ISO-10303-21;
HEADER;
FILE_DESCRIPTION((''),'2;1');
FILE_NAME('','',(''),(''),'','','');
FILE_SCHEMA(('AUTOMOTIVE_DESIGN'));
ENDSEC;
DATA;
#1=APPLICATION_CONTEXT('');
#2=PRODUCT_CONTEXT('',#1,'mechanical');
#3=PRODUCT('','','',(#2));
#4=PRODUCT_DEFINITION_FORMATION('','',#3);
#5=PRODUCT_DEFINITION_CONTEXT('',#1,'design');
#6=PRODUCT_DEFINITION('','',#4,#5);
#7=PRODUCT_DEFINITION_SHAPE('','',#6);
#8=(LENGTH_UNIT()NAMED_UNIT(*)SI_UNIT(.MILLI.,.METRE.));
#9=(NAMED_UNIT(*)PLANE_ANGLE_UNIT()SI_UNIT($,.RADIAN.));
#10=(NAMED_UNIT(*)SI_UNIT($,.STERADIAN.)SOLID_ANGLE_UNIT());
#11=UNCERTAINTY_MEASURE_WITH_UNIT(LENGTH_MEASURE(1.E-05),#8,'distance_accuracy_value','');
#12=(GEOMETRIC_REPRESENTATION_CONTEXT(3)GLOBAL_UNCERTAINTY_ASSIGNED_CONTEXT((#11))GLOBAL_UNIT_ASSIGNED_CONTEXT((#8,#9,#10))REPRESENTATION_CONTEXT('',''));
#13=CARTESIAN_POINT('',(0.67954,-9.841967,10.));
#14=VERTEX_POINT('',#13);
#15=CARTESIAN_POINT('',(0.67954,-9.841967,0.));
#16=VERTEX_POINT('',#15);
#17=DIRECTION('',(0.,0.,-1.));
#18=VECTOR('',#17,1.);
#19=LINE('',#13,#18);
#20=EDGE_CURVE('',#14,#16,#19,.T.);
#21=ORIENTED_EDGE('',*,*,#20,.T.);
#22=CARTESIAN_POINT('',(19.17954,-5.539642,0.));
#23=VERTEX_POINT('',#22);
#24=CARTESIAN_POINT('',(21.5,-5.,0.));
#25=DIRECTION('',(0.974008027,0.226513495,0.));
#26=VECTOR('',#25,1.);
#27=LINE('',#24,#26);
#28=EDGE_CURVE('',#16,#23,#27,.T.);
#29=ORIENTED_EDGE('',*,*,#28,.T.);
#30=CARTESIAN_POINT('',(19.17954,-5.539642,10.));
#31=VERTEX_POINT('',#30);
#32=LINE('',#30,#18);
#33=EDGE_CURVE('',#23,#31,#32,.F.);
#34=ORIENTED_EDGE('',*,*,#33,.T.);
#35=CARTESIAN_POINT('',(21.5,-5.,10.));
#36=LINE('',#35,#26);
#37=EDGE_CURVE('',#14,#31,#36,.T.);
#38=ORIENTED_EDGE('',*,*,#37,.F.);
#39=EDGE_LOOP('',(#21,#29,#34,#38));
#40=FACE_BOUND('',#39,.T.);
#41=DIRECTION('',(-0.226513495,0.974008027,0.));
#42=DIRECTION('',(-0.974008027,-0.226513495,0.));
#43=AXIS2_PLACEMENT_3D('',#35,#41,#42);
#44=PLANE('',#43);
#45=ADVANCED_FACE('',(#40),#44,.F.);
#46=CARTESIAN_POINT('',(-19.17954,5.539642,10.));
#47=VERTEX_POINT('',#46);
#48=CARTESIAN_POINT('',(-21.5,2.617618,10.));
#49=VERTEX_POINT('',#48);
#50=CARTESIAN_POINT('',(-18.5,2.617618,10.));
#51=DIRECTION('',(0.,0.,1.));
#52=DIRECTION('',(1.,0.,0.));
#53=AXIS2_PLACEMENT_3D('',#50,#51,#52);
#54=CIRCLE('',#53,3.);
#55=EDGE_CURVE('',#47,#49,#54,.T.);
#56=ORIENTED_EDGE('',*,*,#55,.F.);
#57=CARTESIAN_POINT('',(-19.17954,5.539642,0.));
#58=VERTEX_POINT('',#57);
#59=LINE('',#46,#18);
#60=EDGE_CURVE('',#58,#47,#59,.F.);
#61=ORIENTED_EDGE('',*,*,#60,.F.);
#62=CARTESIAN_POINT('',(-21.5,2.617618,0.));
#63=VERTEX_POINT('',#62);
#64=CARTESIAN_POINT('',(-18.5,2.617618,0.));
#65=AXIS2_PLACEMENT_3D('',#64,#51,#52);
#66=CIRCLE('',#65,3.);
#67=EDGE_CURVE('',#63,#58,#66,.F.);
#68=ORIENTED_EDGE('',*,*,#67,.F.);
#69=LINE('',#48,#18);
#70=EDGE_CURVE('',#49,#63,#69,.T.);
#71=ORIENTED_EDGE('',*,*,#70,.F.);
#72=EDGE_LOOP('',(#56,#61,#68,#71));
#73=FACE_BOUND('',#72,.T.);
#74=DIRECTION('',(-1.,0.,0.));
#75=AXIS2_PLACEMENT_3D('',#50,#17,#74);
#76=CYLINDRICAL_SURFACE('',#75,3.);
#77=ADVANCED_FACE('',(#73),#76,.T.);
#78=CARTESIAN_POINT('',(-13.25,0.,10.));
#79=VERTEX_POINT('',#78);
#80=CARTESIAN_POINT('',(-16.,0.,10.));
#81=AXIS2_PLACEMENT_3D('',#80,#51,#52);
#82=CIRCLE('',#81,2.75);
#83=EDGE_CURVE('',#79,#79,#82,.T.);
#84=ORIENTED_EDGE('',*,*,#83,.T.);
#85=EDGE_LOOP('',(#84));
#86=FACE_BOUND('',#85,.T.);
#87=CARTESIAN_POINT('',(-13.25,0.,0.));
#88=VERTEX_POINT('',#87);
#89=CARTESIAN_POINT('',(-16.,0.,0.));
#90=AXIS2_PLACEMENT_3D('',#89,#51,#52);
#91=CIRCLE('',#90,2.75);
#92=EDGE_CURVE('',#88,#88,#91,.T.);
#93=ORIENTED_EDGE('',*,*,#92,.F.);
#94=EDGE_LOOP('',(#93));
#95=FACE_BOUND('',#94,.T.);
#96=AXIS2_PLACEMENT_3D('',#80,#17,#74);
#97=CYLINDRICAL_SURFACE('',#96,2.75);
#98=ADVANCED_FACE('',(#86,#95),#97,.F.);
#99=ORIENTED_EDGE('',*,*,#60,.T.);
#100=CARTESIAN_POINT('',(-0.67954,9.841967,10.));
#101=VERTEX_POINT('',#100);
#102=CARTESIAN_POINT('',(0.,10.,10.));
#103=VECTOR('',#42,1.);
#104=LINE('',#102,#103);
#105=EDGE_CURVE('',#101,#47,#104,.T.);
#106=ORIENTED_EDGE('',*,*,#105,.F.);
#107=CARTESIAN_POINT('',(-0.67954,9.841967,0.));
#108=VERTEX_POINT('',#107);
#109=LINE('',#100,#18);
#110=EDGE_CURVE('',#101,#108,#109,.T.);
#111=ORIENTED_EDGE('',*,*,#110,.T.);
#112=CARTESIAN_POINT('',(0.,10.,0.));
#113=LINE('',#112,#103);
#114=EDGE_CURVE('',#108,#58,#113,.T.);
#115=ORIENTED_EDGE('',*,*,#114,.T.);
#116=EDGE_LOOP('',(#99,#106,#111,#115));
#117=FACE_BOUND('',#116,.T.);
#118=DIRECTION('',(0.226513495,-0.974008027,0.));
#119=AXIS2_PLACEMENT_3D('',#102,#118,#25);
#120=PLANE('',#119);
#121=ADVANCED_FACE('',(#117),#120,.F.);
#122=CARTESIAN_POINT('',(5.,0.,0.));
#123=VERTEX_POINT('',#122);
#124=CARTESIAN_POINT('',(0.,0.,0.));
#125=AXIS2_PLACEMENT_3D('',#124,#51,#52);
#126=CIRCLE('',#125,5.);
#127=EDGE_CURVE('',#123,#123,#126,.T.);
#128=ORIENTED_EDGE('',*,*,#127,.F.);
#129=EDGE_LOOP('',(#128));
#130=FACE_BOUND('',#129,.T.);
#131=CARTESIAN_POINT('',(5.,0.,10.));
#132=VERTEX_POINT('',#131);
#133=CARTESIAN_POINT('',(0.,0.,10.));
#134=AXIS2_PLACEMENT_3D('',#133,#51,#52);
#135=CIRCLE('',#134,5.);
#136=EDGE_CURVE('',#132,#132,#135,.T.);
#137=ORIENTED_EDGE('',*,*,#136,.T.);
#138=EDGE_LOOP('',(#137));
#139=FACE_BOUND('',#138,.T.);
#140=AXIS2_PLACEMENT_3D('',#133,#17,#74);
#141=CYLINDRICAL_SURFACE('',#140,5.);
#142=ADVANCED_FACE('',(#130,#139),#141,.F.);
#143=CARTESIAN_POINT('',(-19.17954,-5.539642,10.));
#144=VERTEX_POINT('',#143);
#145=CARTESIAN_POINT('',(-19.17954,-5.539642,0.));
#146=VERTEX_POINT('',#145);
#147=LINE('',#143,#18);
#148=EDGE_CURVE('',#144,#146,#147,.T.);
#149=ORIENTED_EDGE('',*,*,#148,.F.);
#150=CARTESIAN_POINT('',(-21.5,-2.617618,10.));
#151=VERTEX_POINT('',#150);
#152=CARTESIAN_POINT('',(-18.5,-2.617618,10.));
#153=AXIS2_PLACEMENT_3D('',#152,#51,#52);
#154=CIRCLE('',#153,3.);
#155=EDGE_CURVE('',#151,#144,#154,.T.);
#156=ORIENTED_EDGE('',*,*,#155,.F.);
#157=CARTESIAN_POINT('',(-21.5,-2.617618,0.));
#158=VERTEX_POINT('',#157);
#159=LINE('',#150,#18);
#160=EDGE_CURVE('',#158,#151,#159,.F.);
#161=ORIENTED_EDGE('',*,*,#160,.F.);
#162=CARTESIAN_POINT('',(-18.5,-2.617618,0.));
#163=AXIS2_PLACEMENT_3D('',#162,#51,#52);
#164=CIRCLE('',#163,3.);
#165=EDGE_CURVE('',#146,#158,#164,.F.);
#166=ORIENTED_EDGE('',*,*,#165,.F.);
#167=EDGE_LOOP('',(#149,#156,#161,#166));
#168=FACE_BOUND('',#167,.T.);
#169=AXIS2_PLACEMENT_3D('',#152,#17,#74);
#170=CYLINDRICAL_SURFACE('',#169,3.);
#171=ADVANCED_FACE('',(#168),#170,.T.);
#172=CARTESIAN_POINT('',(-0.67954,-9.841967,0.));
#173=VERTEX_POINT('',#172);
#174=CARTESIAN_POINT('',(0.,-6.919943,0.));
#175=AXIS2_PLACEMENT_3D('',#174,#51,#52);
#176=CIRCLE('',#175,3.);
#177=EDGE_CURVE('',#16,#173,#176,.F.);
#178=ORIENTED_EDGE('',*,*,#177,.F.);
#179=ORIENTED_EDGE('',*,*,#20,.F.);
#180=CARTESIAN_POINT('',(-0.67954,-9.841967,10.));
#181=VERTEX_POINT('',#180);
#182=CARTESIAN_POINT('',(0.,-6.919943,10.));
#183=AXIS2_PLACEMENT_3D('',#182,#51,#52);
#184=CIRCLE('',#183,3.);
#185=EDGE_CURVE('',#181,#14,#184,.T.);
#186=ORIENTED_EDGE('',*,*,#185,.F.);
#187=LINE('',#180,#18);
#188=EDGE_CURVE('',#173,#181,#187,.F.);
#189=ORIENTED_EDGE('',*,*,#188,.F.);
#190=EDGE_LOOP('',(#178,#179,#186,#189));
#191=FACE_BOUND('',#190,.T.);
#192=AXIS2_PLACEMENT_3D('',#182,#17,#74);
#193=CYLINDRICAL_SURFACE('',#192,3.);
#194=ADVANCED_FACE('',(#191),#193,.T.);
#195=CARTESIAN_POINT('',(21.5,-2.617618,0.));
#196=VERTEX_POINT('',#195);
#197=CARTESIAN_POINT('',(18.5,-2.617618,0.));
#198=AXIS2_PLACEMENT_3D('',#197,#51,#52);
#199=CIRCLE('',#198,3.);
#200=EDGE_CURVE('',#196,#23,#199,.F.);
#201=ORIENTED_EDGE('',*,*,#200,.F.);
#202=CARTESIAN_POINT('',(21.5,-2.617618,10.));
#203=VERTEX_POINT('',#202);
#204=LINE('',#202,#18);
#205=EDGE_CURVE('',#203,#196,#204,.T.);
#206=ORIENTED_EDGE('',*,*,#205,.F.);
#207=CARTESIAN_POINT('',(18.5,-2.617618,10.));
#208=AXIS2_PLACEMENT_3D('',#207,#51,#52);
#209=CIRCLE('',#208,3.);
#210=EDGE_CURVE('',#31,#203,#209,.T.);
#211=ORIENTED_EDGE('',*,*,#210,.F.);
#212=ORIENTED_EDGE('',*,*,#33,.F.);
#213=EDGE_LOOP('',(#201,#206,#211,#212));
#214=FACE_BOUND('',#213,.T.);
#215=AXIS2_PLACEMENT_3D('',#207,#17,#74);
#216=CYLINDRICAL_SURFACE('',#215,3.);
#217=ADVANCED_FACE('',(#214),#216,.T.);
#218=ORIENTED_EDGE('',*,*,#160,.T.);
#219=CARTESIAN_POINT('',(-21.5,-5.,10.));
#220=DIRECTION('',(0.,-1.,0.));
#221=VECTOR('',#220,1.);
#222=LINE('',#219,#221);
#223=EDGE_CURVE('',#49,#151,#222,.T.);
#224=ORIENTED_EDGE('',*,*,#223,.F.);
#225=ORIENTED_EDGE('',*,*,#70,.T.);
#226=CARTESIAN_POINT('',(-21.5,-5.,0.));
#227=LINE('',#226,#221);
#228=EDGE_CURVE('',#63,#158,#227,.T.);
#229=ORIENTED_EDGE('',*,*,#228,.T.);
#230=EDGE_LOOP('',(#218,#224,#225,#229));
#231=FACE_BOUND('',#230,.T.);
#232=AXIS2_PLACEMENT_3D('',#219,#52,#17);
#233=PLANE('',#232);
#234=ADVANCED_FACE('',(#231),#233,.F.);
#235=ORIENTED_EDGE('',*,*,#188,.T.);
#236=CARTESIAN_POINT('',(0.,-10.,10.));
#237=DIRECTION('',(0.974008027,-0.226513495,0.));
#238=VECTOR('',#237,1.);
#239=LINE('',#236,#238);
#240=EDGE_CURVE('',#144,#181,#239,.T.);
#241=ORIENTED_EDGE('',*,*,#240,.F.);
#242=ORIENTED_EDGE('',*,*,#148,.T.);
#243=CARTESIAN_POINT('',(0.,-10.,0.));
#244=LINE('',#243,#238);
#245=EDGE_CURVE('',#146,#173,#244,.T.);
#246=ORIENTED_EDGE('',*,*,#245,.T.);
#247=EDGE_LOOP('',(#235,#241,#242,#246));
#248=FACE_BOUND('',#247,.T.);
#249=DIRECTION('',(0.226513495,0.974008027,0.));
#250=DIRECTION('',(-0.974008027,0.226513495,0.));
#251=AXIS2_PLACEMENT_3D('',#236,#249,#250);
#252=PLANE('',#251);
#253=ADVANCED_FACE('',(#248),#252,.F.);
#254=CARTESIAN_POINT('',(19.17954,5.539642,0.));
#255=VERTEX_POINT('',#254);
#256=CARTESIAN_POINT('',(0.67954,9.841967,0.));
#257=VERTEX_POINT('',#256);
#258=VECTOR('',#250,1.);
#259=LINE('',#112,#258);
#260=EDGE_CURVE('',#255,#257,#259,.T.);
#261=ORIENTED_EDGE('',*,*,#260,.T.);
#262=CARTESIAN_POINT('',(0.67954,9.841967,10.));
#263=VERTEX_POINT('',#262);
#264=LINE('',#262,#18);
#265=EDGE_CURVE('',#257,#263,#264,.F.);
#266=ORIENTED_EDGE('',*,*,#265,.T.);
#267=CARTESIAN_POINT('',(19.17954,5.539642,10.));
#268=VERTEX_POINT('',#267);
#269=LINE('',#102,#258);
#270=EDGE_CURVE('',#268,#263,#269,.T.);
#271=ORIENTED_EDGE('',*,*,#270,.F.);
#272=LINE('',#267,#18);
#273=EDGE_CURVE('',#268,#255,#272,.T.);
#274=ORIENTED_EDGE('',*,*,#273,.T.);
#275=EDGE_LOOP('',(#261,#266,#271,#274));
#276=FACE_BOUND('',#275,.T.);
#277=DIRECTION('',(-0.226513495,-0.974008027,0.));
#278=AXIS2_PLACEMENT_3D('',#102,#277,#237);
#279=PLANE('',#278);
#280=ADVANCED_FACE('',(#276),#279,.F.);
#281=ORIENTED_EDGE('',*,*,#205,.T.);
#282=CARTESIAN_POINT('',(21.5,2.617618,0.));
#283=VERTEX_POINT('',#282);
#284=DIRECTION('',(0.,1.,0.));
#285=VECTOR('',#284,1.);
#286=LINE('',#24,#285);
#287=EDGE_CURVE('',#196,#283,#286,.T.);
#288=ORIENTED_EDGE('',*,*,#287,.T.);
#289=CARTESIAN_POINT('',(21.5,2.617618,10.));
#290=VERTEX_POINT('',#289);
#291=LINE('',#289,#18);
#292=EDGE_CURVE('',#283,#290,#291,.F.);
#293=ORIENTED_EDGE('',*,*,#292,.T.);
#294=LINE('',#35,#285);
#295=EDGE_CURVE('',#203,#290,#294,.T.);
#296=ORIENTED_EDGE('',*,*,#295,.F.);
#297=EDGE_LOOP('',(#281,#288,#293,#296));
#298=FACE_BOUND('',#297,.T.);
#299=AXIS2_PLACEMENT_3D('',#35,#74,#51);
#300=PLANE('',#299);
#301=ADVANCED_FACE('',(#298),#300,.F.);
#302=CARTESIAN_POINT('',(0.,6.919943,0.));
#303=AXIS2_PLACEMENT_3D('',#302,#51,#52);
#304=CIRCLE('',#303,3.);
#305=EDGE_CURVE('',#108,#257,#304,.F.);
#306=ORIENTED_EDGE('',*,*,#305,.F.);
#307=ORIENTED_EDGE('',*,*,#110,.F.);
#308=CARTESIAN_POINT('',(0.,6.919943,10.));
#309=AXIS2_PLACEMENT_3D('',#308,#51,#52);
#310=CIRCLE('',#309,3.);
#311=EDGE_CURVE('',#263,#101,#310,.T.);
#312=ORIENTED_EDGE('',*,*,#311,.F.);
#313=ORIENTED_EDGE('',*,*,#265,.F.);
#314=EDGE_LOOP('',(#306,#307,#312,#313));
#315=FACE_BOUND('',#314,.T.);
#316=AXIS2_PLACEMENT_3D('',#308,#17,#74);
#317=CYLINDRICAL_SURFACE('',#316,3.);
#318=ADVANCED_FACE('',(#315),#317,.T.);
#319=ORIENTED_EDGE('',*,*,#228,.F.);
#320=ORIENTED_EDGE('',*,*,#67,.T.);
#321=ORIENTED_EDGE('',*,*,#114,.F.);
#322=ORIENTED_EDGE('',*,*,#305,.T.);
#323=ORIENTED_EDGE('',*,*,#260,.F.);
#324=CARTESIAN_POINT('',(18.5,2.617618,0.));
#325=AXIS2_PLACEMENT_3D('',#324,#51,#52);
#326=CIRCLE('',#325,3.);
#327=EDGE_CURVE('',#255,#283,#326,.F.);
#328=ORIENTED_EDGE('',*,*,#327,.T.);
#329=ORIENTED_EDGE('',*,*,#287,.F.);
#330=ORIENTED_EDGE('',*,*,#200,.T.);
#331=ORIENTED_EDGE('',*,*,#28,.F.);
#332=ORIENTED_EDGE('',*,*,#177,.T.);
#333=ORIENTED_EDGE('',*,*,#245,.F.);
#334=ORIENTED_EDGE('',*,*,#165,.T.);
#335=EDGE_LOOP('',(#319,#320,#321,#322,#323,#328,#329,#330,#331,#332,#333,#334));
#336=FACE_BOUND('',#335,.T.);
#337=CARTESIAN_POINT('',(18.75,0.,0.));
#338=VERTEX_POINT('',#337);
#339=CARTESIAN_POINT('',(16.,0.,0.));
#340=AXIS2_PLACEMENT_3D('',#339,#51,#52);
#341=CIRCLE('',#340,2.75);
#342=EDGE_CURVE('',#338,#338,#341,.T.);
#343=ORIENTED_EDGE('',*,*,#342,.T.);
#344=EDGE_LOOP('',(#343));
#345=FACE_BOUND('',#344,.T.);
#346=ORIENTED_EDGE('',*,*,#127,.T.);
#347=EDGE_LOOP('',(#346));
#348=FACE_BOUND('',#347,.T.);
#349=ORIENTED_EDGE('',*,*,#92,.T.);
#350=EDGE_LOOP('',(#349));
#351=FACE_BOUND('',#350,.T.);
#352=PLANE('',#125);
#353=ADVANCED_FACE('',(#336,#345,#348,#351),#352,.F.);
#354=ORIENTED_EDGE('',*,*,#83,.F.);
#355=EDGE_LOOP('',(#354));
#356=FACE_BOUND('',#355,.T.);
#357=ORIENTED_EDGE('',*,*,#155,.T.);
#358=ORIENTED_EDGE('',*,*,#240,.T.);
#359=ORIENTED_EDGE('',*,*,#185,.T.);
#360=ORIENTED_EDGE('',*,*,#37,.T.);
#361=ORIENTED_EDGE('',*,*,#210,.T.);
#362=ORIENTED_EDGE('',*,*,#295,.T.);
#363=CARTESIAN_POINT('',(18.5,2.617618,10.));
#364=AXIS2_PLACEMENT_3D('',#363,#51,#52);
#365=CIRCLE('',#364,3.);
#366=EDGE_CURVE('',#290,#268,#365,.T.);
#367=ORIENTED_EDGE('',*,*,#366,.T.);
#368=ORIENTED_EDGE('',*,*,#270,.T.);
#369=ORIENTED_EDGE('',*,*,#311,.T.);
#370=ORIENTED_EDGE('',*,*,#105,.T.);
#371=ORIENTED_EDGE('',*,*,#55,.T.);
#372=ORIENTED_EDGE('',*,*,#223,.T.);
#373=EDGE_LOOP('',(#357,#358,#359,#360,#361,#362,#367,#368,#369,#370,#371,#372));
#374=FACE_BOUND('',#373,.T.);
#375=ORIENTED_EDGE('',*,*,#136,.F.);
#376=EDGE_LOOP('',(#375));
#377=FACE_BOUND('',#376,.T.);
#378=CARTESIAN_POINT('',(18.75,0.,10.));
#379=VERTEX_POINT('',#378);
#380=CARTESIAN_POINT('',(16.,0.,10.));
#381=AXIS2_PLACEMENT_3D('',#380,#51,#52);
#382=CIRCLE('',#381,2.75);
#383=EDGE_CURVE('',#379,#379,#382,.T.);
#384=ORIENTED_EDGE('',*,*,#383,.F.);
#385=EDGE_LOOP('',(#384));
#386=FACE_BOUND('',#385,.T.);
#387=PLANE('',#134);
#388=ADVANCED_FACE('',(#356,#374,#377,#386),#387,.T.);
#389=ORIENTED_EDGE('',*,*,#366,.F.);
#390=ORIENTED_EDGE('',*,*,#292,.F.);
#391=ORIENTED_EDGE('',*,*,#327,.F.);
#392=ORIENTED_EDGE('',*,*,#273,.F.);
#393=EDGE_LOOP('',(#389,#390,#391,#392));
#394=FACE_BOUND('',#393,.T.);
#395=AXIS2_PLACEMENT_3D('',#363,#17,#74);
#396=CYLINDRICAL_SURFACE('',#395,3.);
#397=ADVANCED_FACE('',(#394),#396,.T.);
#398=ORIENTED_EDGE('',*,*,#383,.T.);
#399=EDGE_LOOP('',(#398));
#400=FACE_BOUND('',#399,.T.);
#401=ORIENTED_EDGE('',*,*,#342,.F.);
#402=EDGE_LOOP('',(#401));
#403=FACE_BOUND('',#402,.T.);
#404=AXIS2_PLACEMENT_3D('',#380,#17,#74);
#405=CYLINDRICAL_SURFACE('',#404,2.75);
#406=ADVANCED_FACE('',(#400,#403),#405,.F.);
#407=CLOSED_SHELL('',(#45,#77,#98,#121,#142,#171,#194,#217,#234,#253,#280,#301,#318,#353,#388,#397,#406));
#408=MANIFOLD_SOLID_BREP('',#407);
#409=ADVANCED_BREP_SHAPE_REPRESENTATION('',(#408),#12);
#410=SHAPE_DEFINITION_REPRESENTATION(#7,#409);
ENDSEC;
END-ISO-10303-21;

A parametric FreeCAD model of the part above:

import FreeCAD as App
import Part
import Sketcher
from FreeCAD import Vector
Q = App.Units.Quantity


def edges_at(feature, points):
    """Names of the edges that pass closest to the given points."""
    edges = feature.Shape.Edges
    near = lambda p: min(range(len(edges)), key=lambda i: edges[i].distToShape(Part.Vertex(*p))[0])
    return sorted({f"Edge{near(p) + 1}" for p in points})


def add_polygon(sketch, points):
    """Adds a closed chain of lines whose ends are joined by coincident constraints."""
    first, n = sketch.GeometryCount, len(points)
    for a, b in zip(points, points[1:] + points[:1]):
        sketch.addGeometry(Part.LineSegment(App.Vector(*a, 0), App.Vector(*b, 0)), False)
    for i in range(n):
        sketch.addConstraint(Sketcher.Constraint("Coincident", first + i, 2, first + (i + 1) % n, 1))

doc = App.newDocument("Part")
body = doc.addObject("PartDesign::Body", "Body")

# Sketch on XY plane
sketch1 = body.newObject("Sketcher::SketchObject", "Sketch")
sketch1.AttachmentSupport = (doc.getObject("XY_Plane"), [""])
sketch1.MapMode = "FlatFace"
add_polygon(sketch1, [(-21.5, 5), (-21.5, -5), (0, -10), (21.5, -5), (21.5, 5), (0, 10)])  # lines 0-5
sketch1.addGeometry(Part.Circle(Vector(16, 0, 0), Vector(0, 0, 1), 2.75), False)  # 6
sketch1.addGeometry(Part.Circle(Vector(0, 0, 0), Vector(0, 0, 1), 5), False)  # 7
sketch1.addGeometry(Part.Circle(Vector(-16, 0, 0), Vector(0, 0, 1), 2.75), False)  # 8
sketch1.addConstraint(Sketcher.Constraint("Vertical", 0))
sketch1.addConstraint(Sketcher.Constraint("Vertical", 3))
sketch1.addConstraint(Sketcher.Constraint("Coincident", 7, 3, -1, 1))
sketch1.addConstraint(Sketcher.Constraint("Equal", 6, 8))
sketch1.addConstraint(Sketcher.Constraint("Symmetric", 6, 3, 8, 3, -1, 1))
sketch1.addConstraint(Sketcher.Constraint("Symmetric", 0, 2, 3, 2, -1, 1))
sketch1.addConstraint(Sketcher.Constraint("Symmetric", 1, 2, 4, 2, -1, 1))
sketch1.addConstraint(Sketcher.Constraint("PointOnObject", 6, 3, -1))
sketch1.addConstraint(Sketcher.Constraint("PointOnObject", 1, 2, -2))
sketch1.addConstraint(Sketcher.Constraint("Parallel", 2, 5))
sketch1.addConstraint(Sketcher.Constraint("Horizontal", 0, 2, 2, 2))
sketch1.addConstraint(Sketcher.Constraint("Diameter", 7, Q("10 mm")))
sketch1.addConstraint(Sketcher.Constraint("Diameter", 6, Q("5.5 mm")))
sketch1.addConstraint(Sketcher.Constraint("DistanceY", 0, 2, 0, 1, Q("10 mm")))
sketch1.addConstraint(Sketcher.Constraint("DistanceX", -1, 1, 6, 3, Q("16 mm")))
sketch1.addConstraint(Sketcher.Constraint("DistanceY", 1, 2, -1, 1, Q("10 mm")))
sketch1.addConstraint(Sketcher.Constraint("DistanceX", 0, 2, 2, 2, Q("43 mm")))
pad1 = body.newObject("PartDesign::Pad", "Pad")
pad1.Profile = sketch1
pad1.Length = 10
doc.recompute()

fillet = body.newObject("PartDesign::Fillet", "Fillet")
fillet.Base = (pad1, edges_at(pad1, [
    (21.5, 5, 5),
    (21.5, -5, 5),
    (0, -10, 5),
    (-21.5, -5, 5),
    (-21.5, 5, 5),
    (0, 10, 5),
]))
fillet.Radius = 3

doc.recompute()
